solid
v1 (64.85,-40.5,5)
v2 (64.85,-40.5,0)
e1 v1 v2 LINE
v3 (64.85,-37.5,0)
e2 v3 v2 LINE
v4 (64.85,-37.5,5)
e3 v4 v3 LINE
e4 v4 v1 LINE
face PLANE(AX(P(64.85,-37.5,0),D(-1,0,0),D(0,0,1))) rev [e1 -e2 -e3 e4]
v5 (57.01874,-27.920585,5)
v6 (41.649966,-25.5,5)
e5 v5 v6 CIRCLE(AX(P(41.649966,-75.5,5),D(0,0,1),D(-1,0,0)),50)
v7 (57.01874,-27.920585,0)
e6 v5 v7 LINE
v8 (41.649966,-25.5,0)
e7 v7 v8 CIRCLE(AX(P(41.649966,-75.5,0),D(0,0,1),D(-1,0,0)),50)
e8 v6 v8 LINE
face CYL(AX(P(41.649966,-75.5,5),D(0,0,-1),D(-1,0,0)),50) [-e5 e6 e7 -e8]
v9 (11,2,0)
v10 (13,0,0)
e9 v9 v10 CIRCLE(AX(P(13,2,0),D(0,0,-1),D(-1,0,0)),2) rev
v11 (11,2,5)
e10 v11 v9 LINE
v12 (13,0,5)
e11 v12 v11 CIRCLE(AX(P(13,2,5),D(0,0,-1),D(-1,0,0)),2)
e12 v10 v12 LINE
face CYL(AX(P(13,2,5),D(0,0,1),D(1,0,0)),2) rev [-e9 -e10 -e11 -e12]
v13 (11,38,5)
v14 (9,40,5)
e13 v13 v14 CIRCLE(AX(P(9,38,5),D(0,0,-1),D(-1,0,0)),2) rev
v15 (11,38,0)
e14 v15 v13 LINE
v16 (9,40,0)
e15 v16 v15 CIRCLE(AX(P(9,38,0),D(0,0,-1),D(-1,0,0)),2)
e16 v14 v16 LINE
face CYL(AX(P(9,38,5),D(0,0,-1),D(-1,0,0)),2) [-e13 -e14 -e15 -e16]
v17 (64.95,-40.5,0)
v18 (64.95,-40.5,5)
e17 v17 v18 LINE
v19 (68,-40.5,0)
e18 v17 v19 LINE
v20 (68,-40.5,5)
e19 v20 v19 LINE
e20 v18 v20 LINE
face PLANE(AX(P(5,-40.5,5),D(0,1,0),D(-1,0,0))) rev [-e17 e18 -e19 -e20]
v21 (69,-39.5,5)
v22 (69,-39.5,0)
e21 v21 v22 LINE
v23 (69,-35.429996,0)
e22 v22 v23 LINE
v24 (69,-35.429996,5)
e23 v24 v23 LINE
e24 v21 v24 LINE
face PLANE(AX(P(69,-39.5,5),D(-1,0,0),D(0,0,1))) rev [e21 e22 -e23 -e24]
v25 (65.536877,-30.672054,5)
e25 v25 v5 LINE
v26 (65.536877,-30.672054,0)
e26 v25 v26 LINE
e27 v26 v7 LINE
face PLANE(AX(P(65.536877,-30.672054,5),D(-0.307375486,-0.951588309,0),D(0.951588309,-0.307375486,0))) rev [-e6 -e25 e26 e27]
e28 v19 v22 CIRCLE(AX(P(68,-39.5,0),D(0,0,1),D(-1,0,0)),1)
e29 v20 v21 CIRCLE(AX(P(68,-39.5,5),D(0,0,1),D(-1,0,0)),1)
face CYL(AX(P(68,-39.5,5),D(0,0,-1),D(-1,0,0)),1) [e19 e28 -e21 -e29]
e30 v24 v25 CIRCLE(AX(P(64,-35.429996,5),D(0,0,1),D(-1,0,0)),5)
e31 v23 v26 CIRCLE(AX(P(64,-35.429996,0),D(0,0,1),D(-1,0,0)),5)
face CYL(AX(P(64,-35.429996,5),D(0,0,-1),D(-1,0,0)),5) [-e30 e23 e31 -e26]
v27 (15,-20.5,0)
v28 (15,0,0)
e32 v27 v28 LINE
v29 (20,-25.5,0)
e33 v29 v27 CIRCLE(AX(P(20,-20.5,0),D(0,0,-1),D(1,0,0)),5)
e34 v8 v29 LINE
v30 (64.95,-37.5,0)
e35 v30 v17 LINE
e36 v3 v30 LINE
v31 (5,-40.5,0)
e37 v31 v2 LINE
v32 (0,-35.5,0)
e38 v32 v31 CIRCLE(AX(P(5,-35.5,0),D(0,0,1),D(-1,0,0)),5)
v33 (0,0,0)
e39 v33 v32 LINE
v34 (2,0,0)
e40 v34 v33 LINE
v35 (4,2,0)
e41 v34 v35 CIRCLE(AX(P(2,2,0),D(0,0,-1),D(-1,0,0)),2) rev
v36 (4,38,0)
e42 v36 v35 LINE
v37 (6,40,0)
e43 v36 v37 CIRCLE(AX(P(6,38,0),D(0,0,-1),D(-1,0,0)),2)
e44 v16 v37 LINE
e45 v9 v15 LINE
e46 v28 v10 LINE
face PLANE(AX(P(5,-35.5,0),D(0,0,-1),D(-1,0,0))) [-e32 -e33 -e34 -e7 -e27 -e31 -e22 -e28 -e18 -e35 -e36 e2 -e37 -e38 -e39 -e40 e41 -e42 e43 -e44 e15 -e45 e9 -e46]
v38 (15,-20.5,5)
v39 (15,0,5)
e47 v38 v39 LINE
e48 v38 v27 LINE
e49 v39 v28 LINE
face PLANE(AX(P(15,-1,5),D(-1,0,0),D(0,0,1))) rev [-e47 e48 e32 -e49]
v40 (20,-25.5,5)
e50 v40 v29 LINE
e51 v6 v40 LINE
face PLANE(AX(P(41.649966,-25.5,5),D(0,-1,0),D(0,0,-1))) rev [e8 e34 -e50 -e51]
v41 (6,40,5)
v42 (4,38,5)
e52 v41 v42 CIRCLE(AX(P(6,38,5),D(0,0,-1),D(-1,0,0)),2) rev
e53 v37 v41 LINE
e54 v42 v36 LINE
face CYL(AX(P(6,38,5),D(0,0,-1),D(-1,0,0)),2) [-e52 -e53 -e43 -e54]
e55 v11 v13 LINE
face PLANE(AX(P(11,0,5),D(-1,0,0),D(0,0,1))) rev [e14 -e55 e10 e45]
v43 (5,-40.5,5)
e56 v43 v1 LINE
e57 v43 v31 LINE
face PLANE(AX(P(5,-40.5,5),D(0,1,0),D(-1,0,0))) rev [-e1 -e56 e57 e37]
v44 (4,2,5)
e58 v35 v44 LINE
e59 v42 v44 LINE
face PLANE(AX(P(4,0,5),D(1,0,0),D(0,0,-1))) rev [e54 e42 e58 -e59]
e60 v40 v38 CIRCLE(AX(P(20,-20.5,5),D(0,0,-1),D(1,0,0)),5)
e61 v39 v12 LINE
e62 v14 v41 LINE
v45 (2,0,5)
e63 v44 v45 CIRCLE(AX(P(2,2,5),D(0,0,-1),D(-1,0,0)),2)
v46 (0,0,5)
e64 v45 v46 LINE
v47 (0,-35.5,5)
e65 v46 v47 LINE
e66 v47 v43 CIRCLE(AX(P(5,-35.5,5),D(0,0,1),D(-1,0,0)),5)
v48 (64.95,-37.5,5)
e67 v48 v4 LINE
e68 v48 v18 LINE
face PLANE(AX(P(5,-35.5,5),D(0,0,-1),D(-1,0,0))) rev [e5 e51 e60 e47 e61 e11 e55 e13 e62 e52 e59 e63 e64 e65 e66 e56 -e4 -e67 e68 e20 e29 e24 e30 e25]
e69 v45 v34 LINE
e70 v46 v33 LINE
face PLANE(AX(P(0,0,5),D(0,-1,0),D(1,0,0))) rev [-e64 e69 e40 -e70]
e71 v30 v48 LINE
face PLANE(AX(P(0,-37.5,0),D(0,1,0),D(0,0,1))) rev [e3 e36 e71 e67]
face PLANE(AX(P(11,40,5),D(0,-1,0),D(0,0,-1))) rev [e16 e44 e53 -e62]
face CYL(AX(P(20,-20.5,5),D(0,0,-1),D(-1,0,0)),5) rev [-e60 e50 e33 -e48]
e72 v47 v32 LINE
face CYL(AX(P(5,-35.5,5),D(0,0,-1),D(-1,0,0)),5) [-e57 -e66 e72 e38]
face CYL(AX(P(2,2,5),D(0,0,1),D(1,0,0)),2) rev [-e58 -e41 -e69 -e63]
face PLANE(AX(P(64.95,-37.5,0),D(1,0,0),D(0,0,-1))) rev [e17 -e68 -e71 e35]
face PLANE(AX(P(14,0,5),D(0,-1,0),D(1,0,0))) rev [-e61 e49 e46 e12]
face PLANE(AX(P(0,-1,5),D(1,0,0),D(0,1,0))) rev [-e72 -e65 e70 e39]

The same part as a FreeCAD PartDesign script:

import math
import FreeCAD as App
import Part
import Sketcher


def edges_at(feature, points):
    """Names of the edges that pass closest to the given points."""
    edges = feature.Shape.Edges
    near = lambda p: min(range(len(edges)), key=lambda i: edges[i].distToShape(Part.Vertex(*p))[0])
    return sorted({f"Edge{near(p) + 1}" for p in points})

doc = App.newDocument("Part")
params = doc.addObject("Spreadsheet::Sheet", "Params")
for row, (alias, value) in enumerate([
    ("sketch1_radius", "5 mm"),
    ("sketch1_radius2", "1 mm"),
    ("sketch1_radius3", "50 mm"),
    ("sketch1_width", "63 mm"),
    ("sketch1_width2", "4 mm"),
    ("pad1_length", "5 mm"),
    ("sketch2_height", "5 mm"),
    ("sketch2_width", "0.1 mm"),
    ("pocket1_length", "3 mm"),
    ("fillet_radius", "2 mm"),
], start=1):
    params.set(f"A{row}", alias)
    params.set(f"B{row}", "=" + value)
    params.setAlias(f"B{row}", alias)

body = doc.addObject("PartDesign::Body", "Body")

sketch1 = doc.addObject("Sketcher::SketchObject", "Sketch")
body.addObject(sketch1)
sketch1.AttachmentSupport = (doc.XY_Plane, [""])
sketch1.MapMode = "FlatFace"
sketch1.addGeometry(Part.ArcOfCircle(Part.Circle(App.Vector(5, -35.5, 0), App.Vector(0, 0, 1), 5), math.radians(180), math.radians(270)), False)
sketch1.addGeometry(Part.LineSegment(App.Vector(5, -40.5, 0), App.Vector(68, -40.5, 0)), False)
sketch1.addGeometry(Part.ArcOfCircle(Part.Circle(App.Vector(68, -39.5, 0), App.Vector(0, 0, 1), 1), math.radians(-90), math.radians(0)), False)
sketch1.addGeometry(Part.LineSegment(App.Vector(69, -39.5, 0), App.Vector(69, -35.4, 0)), False)
sketch1.addGeometry(Part.ArcOfCircle(Part.Circle(App.Vector(64, -35.4, 0), App.Vector(0, 0, 1), 5), math.radians(0), math.radians(72)), False)
sketch1.addGeometry(Part.LineSegment(App.Vector(65.5, -30.7, 0), App.Vector(57, -27.9, 0)), False)
sketch1.addGeometry(Part.ArcOfCircle(Part.Circle(App.Vector(41.6, -75.5, 0), App.Vector(0, 0, 1), 50), math.radians(72.1), math.radians(90)), False)
sketch1.addGeometry(Part.LineSegment(App.Vector(41.6, -25.5, 0), App.Vector(20, -25.5, 0)), False)
sketch1.addGeometry(Part.ArcOfCircle(Part.Circle(App.Vector(20, -20.5, 0), App.Vector(0, 0, 1), 5), math.radians(180), math.radians(270)), False)
sketch1.addGeometry(Part.LineSegment(App.Vector(15, -20.5, 0), App.Vector(15, 0, 0)), False)
sketch1.addGeometry(Part.LineSegment(App.Vector(15, 0, 0), App.Vector(11, 0, 0)), False)
sketch1.addGeometry(Part.LineSegment(App.Vector(11, 0, 0), App.Vector(11, 40, 0)), False)
sketch1.addGeometry(Part.LineSegment(App.Vector(11, 40, 0), App.Vector(4, 40, 0)), False)
sketch1.addGeometry(Part.LineSegment(App.Vector(4, 40, 0), App.Vector(4, 0, 0)), False)
sketch1.addGeometry(Part.LineSegment(App.Vector(4, 0, 0), App.Vector(0, 0, 0)), False)
sketch1.addGeometry(Part.LineSegment(App.Vector(0, 0, 0), App.Vector(0, -35.5, 0)), False)
sketch1.addConstraint(Sketcher.Constraint("Tangent", 0, 2, 1, 1))
sketch1.addConstraint(Sketcher.Constraint("Tangent", 1, 2, 2, 1))
sketch1.addConstraint(Sketcher.Constraint("Tangent", 2, 2, 3, 1))
sketch1.addConstraint(Sketcher.Constraint("Tangent", 3, 2, 4, 1))
sketch1.addConstraint(Sketcher.Constraint("Tangent", 4, 2, 5, 1))
sketch1.addConstraint(Sketcher.Constraint("Tangent", 5, 2, 6, 1))
sketch1.addConstraint(Sketcher.Constraint("Tangent", 6, 2, 7, 1))
sketch1.addConstraint(Sketcher.Constraint("Tangent", 7, 2, 8, 2))
sketch1.addConstraint(Sketcher.Constraint("Tangent", 8, 1, 9, 1))
sketch1.addConstraint(Sketcher.Constraint("Coincident", 9, 2, 10, 1))
sketch1.addConstraint(Sketcher.Constraint("Coincident", 10, 2, 11, 1))
sketch1.addConstraint(Sketcher.Constraint("Coincident", 11, 2, 12, 1))
sketch1.addConstraint(Sketcher.Constraint("Coincident", 12, 2, 13, 1))
sketch1.addConstraint(Sketcher.Constraint("Coincident", 13, 2, 14, 1))
sketch1.addConstraint(Sketcher.Constraint("Coincident", 14, 2, 15, 1))
sketch1.addConstraint(Sketcher.Constraint("Tangent", 15, 2, 0, 1))
sketch1.addConstraint(Sketcher.Constraint("Horizontal", 1))
sketch1.addConstraint(Sketcher.Constraint("Vertical", 3))
sketch1.addConstraint(Sketcher.Constraint("Horizontal", 7))
sketch1.addConstraint(Sketcher.Constraint("Vertical", 9))
sketch1.addConstraint(Sketcher.Constraint("Horizontal", 10))
sketch1.addConstraint(Sketcher.Constraint("Vertical", 11))
sketch1.addConstraint(Sketcher.Constraint("Horizontal", 12))
sketch1.addConstraint(Sketcher.Constraint("Vertical", 13))
sketch1.addConstraint(Sketcher.Constraint("Horizontal", 14))
sketch1.addConstraint(Sketcher.Constraint("Vertical", 15))
sketch1.addConstraint(Sketcher.Constraint("Coincident", 14, 2, -1, 1))
sketch1.addConstraint(Sketcher.Constraint("Equal", 0, 4))
sketch1.addConstraint(Sketcher.Constraint("Equal", 4, 8))
sketch1.addConstraint(Sketcher.Constraint("PointOnObject", 9, 2, -1))
sketch1.addConstraint(Sketcher.Constraint("Equal", 10, 14))
sketch1.addConstraint(Sketcher.Constraint("Radius", 0, 5.0))
sketch1.addConstraint(Sketcher.Constraint("Radius", 2, 1.0))
sketch1.addConstraint(Sketcher.Constraint("Radius", 6, 50.0))
sketch1.addConstraint(Sketcher.Constraint("DistanceX", 1, 1, 1, 2, 63.0))
sketch1.addConstraint(Sketcher.Constraint("DistanceX", 10, 2, 10, 1, 4.0))
sketch1.addConstraint(Sketcher.Constraint("DistanceX", 12, 2, 12, 1, 7.0))
sketch1.addConstraint(Sketcher.Constraint("DistanceY", 11, 1, 11, 2, 40.0))
sketch1.addConstraint(Sketcher.Constraint("DistanceY", 9, 1, 9, 2, 20.5))
sketch1.addConstraint(Sketcher.Constraint("DistanceY", 15, 2, 15, 1, 35.5))
sketch1.addConstraint(Sketcher.Constraint("DistanceX", 7, 2, 7, 1, 21.649966))
sketch1.addConstraint(Sketcher.Constraint("DistanceY", 3, 1, 3, 2, 4.070004))
sketch1.setExpression("Constraints[31]", "Params.sketch1_radius")
sketch1.setExpression("Constraints[32]", "Params.sketch1_radius2")
sketch1.setExpression("Constraints[33]", "Params.sketch1_radius3")
sketch1.setExpression("Constraints[34]", "Params.sketch1_width")
sketch1.setExpression("Constraints[35]", "Params.sketch1_width2")
pad1 = doc.addObject("PartDesign::Pad", "Pad")
body.addObject(pad1)
pad1.Profile = sketch1
pad1.setExpression("Length", "Params.pad1_length")

sketch2 = doc.addObject("Sketcher::SketchObject", "Sketch001")
body.addObject(sketch2)
sketch2.AttachmentSupport = (doc.XZ_Plane, [""])
sketch2.MapMode = "FlatFace"
sketch2.AttachmentOffset = App.Placement(App.Vector(0, 0, 40.5), App.Rotation())
sketch2.addGeometry(Part.LineSegment(App.Vector(64.85, 5, 0), App.Vector(64.85, 0, 0)), False)
sketch2.addGeometry(Part.LineSegment(App.Vector(64.85, 0, 0), App.Vector(64.95, 0, 0)), False)
sketch2.addGeometry(Part.LineSegment(App.Vector(64.95, 0, 0), App.Vector(64.95, 5, 0)), False)
sketch2.addGeometry(Part.LineSegment(App.Vector(64.95, 5, 0), App.Vector(64.85, 5, 0)), False)
sketch2.addConstraint(Sketcher.Constraint("Coincident", 0, 2, 1, 1))
sketch2.addConstraint(Sketcher.Constraint("Coincident", 1, 2, 2, 1))
sketch2.addConstraint(Sketcher.Constraint("Coincident", 2, 2, 3, 1))
sketch2.addConstraint(Sketcher.Constraint("Coincident", 3, 2, 0, 1))
sketch2.addConstraint(Sketcher.Constraint("Vertical", 0))
sketch2.addConstraint(Sketcher.Constraint("Horizontal", 1))
sketch2.addConstraint(Sketcher.Constraint("Vertical", 2))
sketch2.addConstraint(Sketcher.Constraint("Horizontal", 3))
sketch2.addConstraint(Sketcher.Constraint("PointOnObject", 0, 2, -1))
sketch2.addConstraint(Sketcher.Constraint("DistanceY", 0, 2, 0, 1, 5.0))
sketch2.addConstraint(Sketcher.Constraint("DistanceX", 1, 1, 1, 2, 0.1))
sketch2.addConstraint(Sketcher.Constraint("DistanceX", -1, 1, 0, 2, 64.85))
sketch2.setExpression("Constraints[9]", "Params.sketch2_height")
sketch2.setExpression("Constraints[10]", "Params.sketch2_width")
pocket1 = doc.addObject("PartDesign::Pocket", "Pocket")
body.addObject(pocket1)
pocket1.Profile = sketch2
pocket1.setExpression("Length", "Params.pocket1_length")
doc.recompute()

fillet = doc.addObject("PartDesign::Fillet", "Fillet")
body.addObject(fillet)
fillet.Base = (pocket1, edges_at(pocket1, [
    (4, 0, 2.5),
    (4, 40, 2.5),
    (11, 40, 2.5),
    (11, 0, 2.5),
]))
fillet.setExpression("Radius", "Params.fillet_radius")

doc.recompute()
